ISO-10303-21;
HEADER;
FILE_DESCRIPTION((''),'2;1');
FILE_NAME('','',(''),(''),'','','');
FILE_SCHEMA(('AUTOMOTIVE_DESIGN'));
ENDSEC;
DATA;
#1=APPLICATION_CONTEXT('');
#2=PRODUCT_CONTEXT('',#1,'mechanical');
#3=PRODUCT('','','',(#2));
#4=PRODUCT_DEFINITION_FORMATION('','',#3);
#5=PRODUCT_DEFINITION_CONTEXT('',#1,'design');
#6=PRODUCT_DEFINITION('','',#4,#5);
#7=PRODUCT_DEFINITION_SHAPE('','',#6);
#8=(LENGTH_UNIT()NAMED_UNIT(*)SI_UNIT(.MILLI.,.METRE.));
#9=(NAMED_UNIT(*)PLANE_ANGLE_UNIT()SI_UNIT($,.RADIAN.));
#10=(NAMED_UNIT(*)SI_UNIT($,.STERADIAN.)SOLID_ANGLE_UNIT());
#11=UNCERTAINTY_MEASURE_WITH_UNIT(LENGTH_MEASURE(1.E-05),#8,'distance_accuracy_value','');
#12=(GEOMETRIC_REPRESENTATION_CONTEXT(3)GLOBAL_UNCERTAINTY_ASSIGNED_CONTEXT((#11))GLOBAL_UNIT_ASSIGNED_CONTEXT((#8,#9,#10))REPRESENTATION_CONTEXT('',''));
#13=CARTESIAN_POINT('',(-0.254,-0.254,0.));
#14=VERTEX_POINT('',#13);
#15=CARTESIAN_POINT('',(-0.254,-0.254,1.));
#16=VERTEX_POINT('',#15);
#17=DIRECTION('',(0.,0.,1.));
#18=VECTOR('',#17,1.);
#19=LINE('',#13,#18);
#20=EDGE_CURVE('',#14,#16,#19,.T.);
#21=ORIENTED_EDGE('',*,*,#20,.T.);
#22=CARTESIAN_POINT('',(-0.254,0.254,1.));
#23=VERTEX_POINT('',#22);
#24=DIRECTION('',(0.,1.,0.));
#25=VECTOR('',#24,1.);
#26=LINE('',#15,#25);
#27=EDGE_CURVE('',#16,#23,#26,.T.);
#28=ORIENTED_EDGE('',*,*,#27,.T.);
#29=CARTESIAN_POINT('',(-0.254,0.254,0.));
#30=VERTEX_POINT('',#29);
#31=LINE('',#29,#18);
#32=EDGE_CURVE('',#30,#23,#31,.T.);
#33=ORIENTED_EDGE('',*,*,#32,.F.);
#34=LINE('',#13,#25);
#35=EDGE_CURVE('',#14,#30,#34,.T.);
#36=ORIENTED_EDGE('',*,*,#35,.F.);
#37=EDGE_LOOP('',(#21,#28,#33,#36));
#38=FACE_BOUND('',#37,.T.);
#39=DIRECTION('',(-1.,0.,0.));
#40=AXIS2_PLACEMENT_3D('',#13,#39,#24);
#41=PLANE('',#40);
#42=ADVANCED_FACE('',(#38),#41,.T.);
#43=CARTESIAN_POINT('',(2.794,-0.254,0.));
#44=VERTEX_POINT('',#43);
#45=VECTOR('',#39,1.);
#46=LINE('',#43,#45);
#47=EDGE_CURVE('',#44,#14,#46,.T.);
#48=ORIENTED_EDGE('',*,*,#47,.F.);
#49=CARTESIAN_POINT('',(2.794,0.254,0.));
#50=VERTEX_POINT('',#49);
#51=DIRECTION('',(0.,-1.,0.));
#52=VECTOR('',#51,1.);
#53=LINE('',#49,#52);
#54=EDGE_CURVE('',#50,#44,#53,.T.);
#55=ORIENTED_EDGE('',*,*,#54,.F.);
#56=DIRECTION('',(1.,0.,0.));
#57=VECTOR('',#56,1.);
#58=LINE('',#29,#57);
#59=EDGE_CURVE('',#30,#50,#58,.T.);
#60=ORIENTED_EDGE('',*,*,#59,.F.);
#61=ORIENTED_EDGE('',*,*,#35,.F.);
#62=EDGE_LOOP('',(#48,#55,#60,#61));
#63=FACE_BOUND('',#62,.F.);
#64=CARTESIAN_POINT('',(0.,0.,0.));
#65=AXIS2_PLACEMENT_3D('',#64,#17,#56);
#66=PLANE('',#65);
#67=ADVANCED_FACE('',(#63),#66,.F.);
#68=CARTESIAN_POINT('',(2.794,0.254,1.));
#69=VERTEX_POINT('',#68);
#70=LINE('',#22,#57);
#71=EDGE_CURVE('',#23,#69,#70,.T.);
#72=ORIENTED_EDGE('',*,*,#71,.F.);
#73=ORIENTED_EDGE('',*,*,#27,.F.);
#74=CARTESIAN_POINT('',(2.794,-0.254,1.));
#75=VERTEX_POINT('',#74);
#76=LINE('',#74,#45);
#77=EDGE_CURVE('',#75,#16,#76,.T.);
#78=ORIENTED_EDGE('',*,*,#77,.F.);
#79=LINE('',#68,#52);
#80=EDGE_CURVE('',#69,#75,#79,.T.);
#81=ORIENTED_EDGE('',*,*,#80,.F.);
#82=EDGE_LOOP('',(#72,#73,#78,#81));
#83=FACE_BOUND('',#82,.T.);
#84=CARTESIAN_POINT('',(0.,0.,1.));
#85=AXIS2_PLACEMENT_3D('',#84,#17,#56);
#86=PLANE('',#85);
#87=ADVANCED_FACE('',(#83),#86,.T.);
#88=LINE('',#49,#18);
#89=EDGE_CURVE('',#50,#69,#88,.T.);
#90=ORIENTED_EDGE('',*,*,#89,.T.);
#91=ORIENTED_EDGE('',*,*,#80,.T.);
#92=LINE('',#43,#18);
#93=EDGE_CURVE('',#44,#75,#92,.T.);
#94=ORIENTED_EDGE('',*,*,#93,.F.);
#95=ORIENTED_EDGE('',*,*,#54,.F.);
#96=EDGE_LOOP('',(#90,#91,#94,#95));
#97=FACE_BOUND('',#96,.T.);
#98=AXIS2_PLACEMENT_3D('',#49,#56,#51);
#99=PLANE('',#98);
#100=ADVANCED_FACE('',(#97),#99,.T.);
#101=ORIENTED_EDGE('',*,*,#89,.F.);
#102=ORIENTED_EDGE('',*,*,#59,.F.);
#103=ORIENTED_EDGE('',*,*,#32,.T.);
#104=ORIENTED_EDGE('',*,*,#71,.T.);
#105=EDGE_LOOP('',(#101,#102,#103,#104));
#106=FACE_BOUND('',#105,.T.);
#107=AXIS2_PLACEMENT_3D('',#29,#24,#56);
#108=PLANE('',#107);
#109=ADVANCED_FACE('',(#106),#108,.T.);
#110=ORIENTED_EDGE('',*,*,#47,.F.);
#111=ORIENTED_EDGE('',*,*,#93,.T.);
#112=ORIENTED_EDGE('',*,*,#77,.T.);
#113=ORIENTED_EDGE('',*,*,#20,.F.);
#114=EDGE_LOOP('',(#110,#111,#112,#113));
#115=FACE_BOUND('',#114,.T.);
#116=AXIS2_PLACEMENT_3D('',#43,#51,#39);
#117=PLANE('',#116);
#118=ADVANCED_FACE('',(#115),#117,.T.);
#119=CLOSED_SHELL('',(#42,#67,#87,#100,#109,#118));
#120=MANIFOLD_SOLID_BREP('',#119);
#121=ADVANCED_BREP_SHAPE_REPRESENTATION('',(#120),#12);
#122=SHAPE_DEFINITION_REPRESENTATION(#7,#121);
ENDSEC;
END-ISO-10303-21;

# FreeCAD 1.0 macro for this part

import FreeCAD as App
import Part
import Sketcher
from FreeCAD import Vector
Q = App.Units.Quantity

doc = App.newDocument("Part")
body = doc.addObject("PartDesign::Body", "Body")

# Sketch on XY plane
sketch1 = body.newObject("Sketcher::SketchObject", "Sketch")
sketch1.AttachmentSupport = (doc.getObject("XY_Plane"), [""])
sketch1.MapMode = "FlatFace"
sketch1.addGeometry([
    Part.LineSegment(Vector(2.8, 0.3, 0), Vector(-0.3, 0.3, 0)),
    Part.LineSegment(Vector(-0.3, 0.3, 0), Vector(-0.3, -0.3, 0)),
    Part.LineSegment(Vector(-0.3, -0.3, 0), Vector(2.8, -0.3, 0)),
    Part.LineSegment(Vector(2.8, -0.3, 0), Vector(2.8, 0.3, 0)),
], False)
sketch1.addConstraint([
    Sketcher.Constraint("Coincident", 0, 2, 1, 1),
    Sketcher.Constraint("Coincident", 1, 2, 2, 1),
    Sketcher.Constraint("Coincident", 2, 2, 3, 1),
    Sketcher.Constraint("Coincident", 3, 2, 0, 1),
    Sketcher.Constraint("Horizontal", 0),
    Sketcher.Constraint("Vertical", 1),
    Sketcher.Constraint("Horizontal", 2),
    Sketcher.Constraint("Vertical", 3),
    Sketcher.Constraint("DistanceX", 0, 2, 0, 1, Q("0.12 in")),
    Sketcher.Constraint("DistanceY", 1, 2, 1, 1, Q("0.02 in")),
    Sketcher.Constraint("DistanceX", 0, 2, -1, 1, Q("0.01 in")),
    Sketcher.Constraint("DistanceY", -1, 1, 0, 2, Q("0.01 in")),
])
pad1 = body.newObject("PartDesign::Pad", "Pad")
pad1.Profile = sketch1
pad1.Length = 1

doc.recompute()
